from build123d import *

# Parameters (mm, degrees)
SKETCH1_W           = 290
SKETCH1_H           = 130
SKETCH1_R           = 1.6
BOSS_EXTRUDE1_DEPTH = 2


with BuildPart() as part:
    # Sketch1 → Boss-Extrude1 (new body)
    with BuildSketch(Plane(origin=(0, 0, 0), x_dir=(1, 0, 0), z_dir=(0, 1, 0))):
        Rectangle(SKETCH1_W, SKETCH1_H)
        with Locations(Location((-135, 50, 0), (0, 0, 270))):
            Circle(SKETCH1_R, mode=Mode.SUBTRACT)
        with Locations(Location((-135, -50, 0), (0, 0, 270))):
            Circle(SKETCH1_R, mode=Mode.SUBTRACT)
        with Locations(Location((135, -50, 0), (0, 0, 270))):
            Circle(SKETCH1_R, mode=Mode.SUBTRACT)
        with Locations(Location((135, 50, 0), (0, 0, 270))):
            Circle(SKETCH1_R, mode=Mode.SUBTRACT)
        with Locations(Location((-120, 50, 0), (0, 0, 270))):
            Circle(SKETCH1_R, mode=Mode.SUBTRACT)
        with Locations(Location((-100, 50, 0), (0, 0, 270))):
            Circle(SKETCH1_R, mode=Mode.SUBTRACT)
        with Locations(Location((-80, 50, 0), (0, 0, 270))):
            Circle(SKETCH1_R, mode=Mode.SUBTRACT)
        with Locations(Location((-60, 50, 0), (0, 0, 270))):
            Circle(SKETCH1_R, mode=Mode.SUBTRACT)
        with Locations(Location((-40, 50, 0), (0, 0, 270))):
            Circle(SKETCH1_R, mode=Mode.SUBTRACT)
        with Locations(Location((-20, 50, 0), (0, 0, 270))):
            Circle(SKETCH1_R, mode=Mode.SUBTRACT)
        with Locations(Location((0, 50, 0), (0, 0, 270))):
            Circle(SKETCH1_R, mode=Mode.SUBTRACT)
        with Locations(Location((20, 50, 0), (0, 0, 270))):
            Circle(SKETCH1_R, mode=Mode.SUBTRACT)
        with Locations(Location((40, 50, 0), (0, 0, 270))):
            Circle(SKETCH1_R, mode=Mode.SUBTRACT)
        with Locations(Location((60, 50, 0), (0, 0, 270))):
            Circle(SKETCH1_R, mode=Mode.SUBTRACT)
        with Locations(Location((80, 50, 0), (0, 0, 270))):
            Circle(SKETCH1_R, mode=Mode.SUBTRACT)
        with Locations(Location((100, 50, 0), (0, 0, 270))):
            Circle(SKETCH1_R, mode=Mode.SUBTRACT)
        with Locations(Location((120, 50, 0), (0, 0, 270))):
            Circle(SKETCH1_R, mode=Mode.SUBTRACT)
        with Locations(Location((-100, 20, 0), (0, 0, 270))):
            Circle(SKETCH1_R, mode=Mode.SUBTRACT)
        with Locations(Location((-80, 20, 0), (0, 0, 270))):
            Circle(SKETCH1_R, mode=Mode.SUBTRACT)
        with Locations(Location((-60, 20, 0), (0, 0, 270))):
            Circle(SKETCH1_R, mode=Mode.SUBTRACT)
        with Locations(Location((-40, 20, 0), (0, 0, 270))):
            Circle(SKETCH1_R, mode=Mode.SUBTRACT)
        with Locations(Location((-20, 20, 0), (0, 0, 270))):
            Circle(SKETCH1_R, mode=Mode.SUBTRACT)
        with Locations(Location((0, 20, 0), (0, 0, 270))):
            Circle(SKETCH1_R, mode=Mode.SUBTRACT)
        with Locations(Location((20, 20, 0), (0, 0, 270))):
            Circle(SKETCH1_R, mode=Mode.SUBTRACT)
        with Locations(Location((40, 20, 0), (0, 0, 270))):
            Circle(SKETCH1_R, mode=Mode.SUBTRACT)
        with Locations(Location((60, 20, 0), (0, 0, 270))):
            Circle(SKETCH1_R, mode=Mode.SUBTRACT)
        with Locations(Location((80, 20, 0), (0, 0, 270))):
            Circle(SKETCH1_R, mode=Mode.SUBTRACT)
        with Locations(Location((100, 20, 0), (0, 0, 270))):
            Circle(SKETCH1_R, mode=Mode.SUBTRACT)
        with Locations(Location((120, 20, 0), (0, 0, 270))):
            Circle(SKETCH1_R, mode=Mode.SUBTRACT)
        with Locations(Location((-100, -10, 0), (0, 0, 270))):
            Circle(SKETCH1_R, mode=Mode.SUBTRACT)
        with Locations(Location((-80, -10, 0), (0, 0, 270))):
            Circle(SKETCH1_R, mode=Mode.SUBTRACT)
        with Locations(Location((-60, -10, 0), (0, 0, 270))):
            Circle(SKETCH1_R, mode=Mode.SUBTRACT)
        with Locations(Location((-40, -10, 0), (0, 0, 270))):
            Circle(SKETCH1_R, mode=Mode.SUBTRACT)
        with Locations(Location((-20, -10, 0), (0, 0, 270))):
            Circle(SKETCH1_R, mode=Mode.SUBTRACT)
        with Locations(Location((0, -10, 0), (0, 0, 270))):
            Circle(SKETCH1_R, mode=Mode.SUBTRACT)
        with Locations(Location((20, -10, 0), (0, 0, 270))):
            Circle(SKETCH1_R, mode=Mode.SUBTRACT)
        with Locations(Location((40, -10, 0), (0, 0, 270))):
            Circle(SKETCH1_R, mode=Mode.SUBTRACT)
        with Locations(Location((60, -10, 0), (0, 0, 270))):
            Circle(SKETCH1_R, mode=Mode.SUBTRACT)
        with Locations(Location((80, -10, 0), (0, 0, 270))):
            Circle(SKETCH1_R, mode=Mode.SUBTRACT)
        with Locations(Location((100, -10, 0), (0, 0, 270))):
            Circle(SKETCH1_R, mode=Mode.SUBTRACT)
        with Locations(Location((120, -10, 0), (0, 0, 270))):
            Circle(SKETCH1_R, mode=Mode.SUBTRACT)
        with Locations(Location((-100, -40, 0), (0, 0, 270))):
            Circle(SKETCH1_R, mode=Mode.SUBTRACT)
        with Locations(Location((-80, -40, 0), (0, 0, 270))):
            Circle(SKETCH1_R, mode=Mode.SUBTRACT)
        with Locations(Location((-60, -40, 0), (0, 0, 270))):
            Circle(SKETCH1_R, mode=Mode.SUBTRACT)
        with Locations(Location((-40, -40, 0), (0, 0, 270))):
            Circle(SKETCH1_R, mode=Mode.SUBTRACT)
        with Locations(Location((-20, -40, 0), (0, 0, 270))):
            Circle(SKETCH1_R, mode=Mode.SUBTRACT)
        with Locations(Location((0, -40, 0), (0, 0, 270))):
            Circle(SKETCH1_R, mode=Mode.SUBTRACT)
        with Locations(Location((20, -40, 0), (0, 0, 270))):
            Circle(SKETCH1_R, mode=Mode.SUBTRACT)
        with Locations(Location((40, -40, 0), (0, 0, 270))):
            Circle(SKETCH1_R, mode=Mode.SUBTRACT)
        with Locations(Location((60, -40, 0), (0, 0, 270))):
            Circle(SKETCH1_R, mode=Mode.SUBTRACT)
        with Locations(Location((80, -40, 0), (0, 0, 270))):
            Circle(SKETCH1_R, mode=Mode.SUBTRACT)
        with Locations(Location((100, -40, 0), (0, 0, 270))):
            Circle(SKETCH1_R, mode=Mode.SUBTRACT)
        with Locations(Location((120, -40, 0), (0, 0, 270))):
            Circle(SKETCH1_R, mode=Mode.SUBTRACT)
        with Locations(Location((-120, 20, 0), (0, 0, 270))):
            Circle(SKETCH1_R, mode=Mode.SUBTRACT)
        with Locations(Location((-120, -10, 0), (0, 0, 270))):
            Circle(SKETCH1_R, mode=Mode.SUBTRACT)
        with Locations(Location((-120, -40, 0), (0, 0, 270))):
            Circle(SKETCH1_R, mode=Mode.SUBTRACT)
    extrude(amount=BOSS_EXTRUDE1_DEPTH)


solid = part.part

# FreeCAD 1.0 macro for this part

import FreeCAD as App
import Part
import Sketcher
from FreeCAD import Vector


def add_polygon(sketch, points):
    """Adds a closed chain of lines whose ends are joined by coincident constraints."""
    first, n = sketch.GeometryCount, len(points)
    for a, b in zip(points, points[1:] + points[:1]):
        sketch.addGeometry(Part.LineSegment(App.Vector(*a, 0), App.Vector(*b, 0)), False)
    for i in range(n):
        sketch.addConstraint(Sketcher.Constraint("Coincident", first + i, 2, first + (i + 1) % n, 1))

doc = App.newDocument("Part")
body = doc.addObject("PartDesign::Body", "Body")

# Sketch on XZ plane
sketch1 = body.newObject("Sketcher::SketchObject", "Sketch")
sketch1.AttachmentSupport = (doc.getObject("XZ_Plane"), [""])
sketch1.MapMode = "FlatFace"
add_polygon(sketch1, [(-145, -65), (-145, 65), (145, 65), (145, -65)])  # lines 0-3
sketch1.addGeometry(Part.Circle(Vector(-135, 50, 0), Vector(0, 0, 1), 1.6), False)  # 4
sketch1.addGeometry(Part.Circle(Vector(-120, 40, 0), Vector(0, 0, 1), 1.6), False)  # 5
sketch1.addGeometry(Part.Circle(Vector(-100, 40, 0), Vector(0, 0, 1), 1.6), False)  # 6
sketch1.addGeometry(Part.Circle(Vector(-80, 40, 0), Vector(0, 0, 1), 1.6), False)  # 7
sketch1.addGeometry(Part.Circle(Vector(-60, 40, 0), Vector(0, 0, 1), 1.6), False)  # 8
sketch1.addGeometry(Part.Circle(Vector(-40, 40, 0), Vector(0, 0, 1), 1.6), False)  # 9
sketch1.addGeometry(Part.Circle(Vector(-20, 40, 0), Vector(0, 0, 1), 1.6), False)  # 10
sketch1.addGeometry(Part.Circle(Vector(-120, 10, 0), Vector(0, 0, 1), 1.6), False)  # 11
sketch1.addGeometry(Part.Circle(Vector(-100, 10, 0), Vector(0, 0, 1), 1.6), False)  # 12
sketch1.addGeometry(Part.Circle(Vector(-80, 10, 0), Vector(0, 0, 1), 1.6), False)  # 13
sketch1.addGeometry(Part.Circle(Vector(-60, 10, 0), Vector(0, 0, 1), 1.6), False)  # 14
sketch1.addGeometry(Part.Circle(Vector(-40, 10, 0), Vector(0, 0, 1), 1.6), False)  # 15
sketch1.addGeometry(Part.Circle(Vector(-20, 10, 0), Vector(0, 0, 1), 1.6), False)  # 16
sketch1.addGeometry(Part.Circle(Vector(0, 40, 0), Vector(0, 0, 1), 1.6), False)  # 17
sketch1.addGeometry(Part.Circle(Vector(20, 40, 0), Vector(0, 0, 1), 1.6), False)  # 18
sketch1.addGeometry(Part.Circle(Vector(40, 40, 0), Vector(0, 0, 1), 1.6), False)  # 19
sketch1.addGeometry(Part.Circle(Vector(60, 40, 0), Vector(0, 0, 1), 1.6), False)  # 20
sketch1.addGeometry(Part.Circle(Vector(80, 40, 0), Vector(0, 0, 1), 1.6), False)  # 21
sketch1.addGeometry(Part.Circle(Vector(100, 40, 0), Vector(0, 0, 1), 1.6), False)  # 22
sketch1.addGeometry(Part.Circle(Vector(135, 50, 0), Vector(0, 0, 1), 1.6), False)  # 23
sketch1.addGeometry(Part.Circle(Vector(120, 40, 0), Vector(0, 0, 1), 1.6), False)  # 24
sketch1.addGeometry(Part.Circle(Vector(0, 10, 0), Vector(0, 0, 1), 1.6), False)  # 25
sketch1.addGeometry(Part.Circle(Vector(20, 10, 0), Vector(0, 0, 1), 1.6), False)  # 26
sketch1.addGeometry(Part.Circle(Vector(40, 10, 0), Vector(0, 0, 1), 1.6), False)  # 27
sketch1.addGeometry(Part.Circle(Vector(60, 10, 0), Vector(0, 0, 1), 1.6), False)  # 28
sketch1.addGeometry(Part.Circle(Vector(80, 10, 0), Vector(0, 0, 1), 1.6), False)  # 29
sketch1.addGeometry(Part.Circle(Vector(100, 10, 0), Vector(0, 0, 1), 1.6), False)  # 30
sketch1.addGeometry(Part.Circle(Vector(120, 10, 0), Vector(0, 0, 1), 1.6), False)  # 31
sketch1.addGeometry(Part.Circle(Vector(-120, -20, 0), Vector(0, 0, 1), 1.6), False)  # 32
sketch1.addGeometry(Part.Circle(Vector(-100, -20, 0), Vector(0, 0, 1), 1.6), False)  # 33
sketch1.addGeometry(Part.Circle(Vector(-80, -20, 0), Vector(0, 0, 1), 1.6), False)  # 34
sketch1.addGeometry(Part.Circle(Vector(-60, -20, 0), Vector(0, 0, 1), 1.6), False)  # 35
sketch1.addGeometry(Part.Circle(Vector(-40, -20, 0), Vector(0, 0, 1), 1.6), False)  # 36
sketch1.addGeometry(Part.Circle(Vector(-20, -20, 0), Vector(0, 0, 1), 1.6), False)  # 37
sketch1.addGeometry(Part.Circle(Vector(-135, -50, 0), Vector(0, 0, 1), 1.6), False)  # 38
sketch1.addGeometry(Part.Circle(Vector(-120, -50, 0), Vector(0, 0, 1), 1.6), False)  # 39
sketch1.addGeometry(Part.Circle(Vector(-100, -50, 0), Vector(0, 0, 1), 1.6), False)  # 40
sketch1.addGeometry(Part.Circle(Vector(-80, -50, 0), Vector(0, 0, 1), 1.6), False)  # 41
sketch1.addGeometry(Part.Circle(Vector(-60, -50, 0), Vector(0, 0, 1), 1.6), False)  # 42
sketch1.addGeometry(Part.Circle(Vector(-40, -50, 0), Vector(0, 0, 1), 1.6), False)  # 43
sketch1.addGeometry(Part.Circle(Vector(-20, -50, 0), Vector(0, 0, 1), 1.6), False)  # 44
sketch1.addGeometry(Part.Circle(Vector(0, -20, 0), Vector(0, 0, 1), 1.6), False)  # 45
sketch1.addGeometry(Part.Circle(Vector(20, -20, 0), Vector(0, 0, 1), 1.6), False)  # 46
sketch1.addGeometry(Part.Circle(Vector(40, -20, 0), Vector(0, 0, 1), 1.6), False)  # 47
sketch1.addGeometry(Part.Circle(Vector(60, -20, 0), Vector(0, 0, 1), 1.6), False)  # 48
sketch1.addGeometry(Part.Circle(Vector(80, -20, 0), Vector(0, 0, 1), 1.6), False)  # 49
sketch1.addGeometry(Part.Circle(Vector(100, -20, 0), Vector(0, 0, 1), 1.6), False)  # 50
sketch1.addGeometry(Part.Circle(Vector(120, -20, 0), Vector(0, 0, 1), 1.6), False)  # 51
sketch1.addGeometry(Part.Circle(Vector(0, -50, 0), Vector(0, 0, 1), 1.6), False)  # 52
sketch1.addGeometry(Part.Circle(Vector(20, -50, 0), Vector(0, 0, 1), 1.6), False)  # 53
sketch1.addGeometry(Part.Circle(Vector(40, -50, 0), Vector(0, 0, 1), 1.6), False)  # 54
sketch1.addGeometry(Part.Circle(Vector(60, -50, 0), Vector(0, 0, 1), 1.6), False)  # 55
sketch1.addGeometry(Part.Circle(Vector(80, -50, 0), Vector(0, 0, 1), 1.6), False)  # 56
sketch1.addGeometry(Part.Circle(Vector(100, -50, 0), Vector(0, 0, 1), 1.6), False)  # 57
sketch1.addGeometry(Part.Circle(Vector(120, -50, 0), Vector(0, 0, 1), 1.6), False)  # 58
sketch1.addGeometry(Part.Circle(Vector(135, -50, 0), Vector(0, 0, 1), 1.6), False)  # 59
sketch1.addConstraint(Sketcher.Constraint("Vertical", 0))
sketch1.addConstraint(Sketcher.Constraint("Horizontal", 1))
sketch1.addConstraint(Sketcher.Constraint("Vertical", 2))
sketch1.addConstraint(Sketcher.Constraint("Horizontal", 3))
sketch1.addConstraint(Sketcher.Constraint("Equal", 4, 5))
sketch1.addConstraint(Sketcher.Constraint("Equal", 5, 6))
sketch1.addConstraint(Sketcher.Constraint("Equal", 6, 7))
sketch1.addConstraint(Sketcher.Constraint("Equal", 7, 8))
sketch1.addConstraint(Sketcher.Constraint("Equal", 8, 9))
sketch1.addConstraint(Sketcher.Constraint("Equal", 9, 10))
sketch1.addConstraint(Sketcher.Constraint("Equal", 10, 11))
sketch1.addConstraint(Sketcher.Constraint("Equal", 11, 12))
sketch1.addConstraint(Sketcher.Constraint("Equal", 12, 13))
sketch1.addConstraint(Sketcher.Constraint("Equal", 13, 14))
sketch1.addConstraint(Sketcher.Constraint("Equal", 14, 15))
sketch1.addConstraint(Sketcher.Constraint("Equal", 15, 16))
sketch1.addConstraint(Sketcher.Constraint("Equal", 16, 17))
sketch1.addConstraint(Sketcher.Constraint("Equal", 17, 18))
sketch1.addConstraint(Sketcher.Constraint("Equal", 18, 19))
sketch1.addConstraint(Sketcher.Constraint("Equal", 19, 20))
sketch1.addConstraint(Sketcher.Constraint("Equal", 20, 21))
sketch1.addConstraint(Sketcher.Constraint("Equal", 21, 22))
sketch1.addConstraint(Sketcher.Constraint("Equal", 22, 23))
sketch1.addConstraint(Sketcher.Constraint("Equal", 23, 24))
sketch1.addConstraint(Sketcher.Constraint("Equal", 24, 25))
sketch1.addConstraint(Sketcher.Constraint("Equal", 25, 26))
sketch1.addConstraint(Sketcher.Constraint("Equal", 26, 27))
sketch1.addConstraint(Sketcher.Constraint("Equal", 27, 28))
sketch1.addConstraint(Sketcher.Constraint("Equal", 28, 29))
sketch1.addConstraint(Sketcher.Constraint("Equal", 29, 30))
sketch1.addConstraint(Sketcher.Constraint("Equal", 30, 31))
sketch1.addConstraint(Sketcher.Constraint("Equal", 31, 32))
sketch1.addConstraint(Sketcher.Constraint("Equal", 32, 33))
sketch1.addConstraint(Sketcher.Constraint("Equal", 33, 34))
sketch1.addConstraint(Sketcher.Constraint("Equal", 34, 35))
sketch1.addConstraint(Sketcher.Constraint("Equal", 35, 36))
sketch1.addConstraint(Sketcher.Constraint("Equal", 36, 37))
sketch1.addConstraint(Sketcher.Constraint("Equal", 37, 38))
sketch1.addConstraint(Sketcher.Constraint("Equal", 38, 39))
sketch1.addConstraint(Sketcher.Constraint("Equal", 39, 40))
sketch1.addConstraint(Sketcher.Constraint("Equal", 40, 41))
sketch1.addConstraint(Sketcher.Constraint("Equal", 41, 42))
sketch1.addConstraint(Sketcher.Constraint("Equal", 42, 43))
sketch1.addConstraint(Sketcher.Constraint("Equal", 43, 44))
sketch1.addConstraint(Sketcher.Constraint("Equal", 44, 45))
sketch1.addConstraint(Sketcher.Constraint("Equal", 45, 46))
sketch1.addConstraint(Sketcher.Constraint("Equal", 46, 47))
sketch1.addConstraint(Sketcher.Constraint("Equal", 47, 48))
sketch1.addConstraint(Sketcher.Constraint("Equal", 48, 49))
sketch1.addConstraint(Sketcher.Constraint("Equal", 49, 50))
sketch1.addConstraint(Sketcher.Constraint("Equal", 50, 51))
sketch1.addConstraint(Sketcher.Constraint("Equal", 51, 52))
sketch1.addConstraint(Sketcher.Constraint("Equal", 52, 53))
sketch1.addConstraint(Sketcher.Constraint("Equal", 53, 54))
sketch1.addConstraint(Sketcher.Constraint("Equal", 54, 55))
sketch1.addConstraint(Sketcher.Constraint("Equal", 55, 56))
sketch1.addConstraint(Sketcher.Constraint("Equal", 56, 57))
sketch1.addConstraint(Sketcher.Constraint("Equal", 57, 58))
sketch1.addConstraint(Sketcher.Constraint("Equal", 58, 59))
sketch1.addConstraint(Sketcher.Constraint("Symmetric", 23, 3, 38, 3, -1, 1))
sketch1.addConstraint(Sketcher.Constraint("Symmetric", 4, 3, 59, 3, -1, 1))
sketch1.addConstraint(Sketcher.Constraint("Symmetric", 0, 2, 2, 2, -1, 1))
sketch1.addConstraint(Sketcher.Constraint("Symmetric", 10, 3, 18, 3, -2))
sketch1.addConstraint(Sketcher.Constraint("Symmetric", 9, 3, 19, 3, -2))
sketch1.addConstraint(Sketcher.Constraint("Symmetric", 8, 3, 20, 3, -2))
sketch1.addConstraint(Sketcher.Constraint("Symmetric", 7, 3, 21, 3, -2))
sketch1.addConstraint(Sketcher.Constraint("Symmetric", 6, 3, 22, 3, -2))
sketch1.addConstraint(Sketcher.Constraint("Symmetric", 4, 3, 23, 3, -2))
sketch1.addConstraint(Sketcher.Constraint("Symmetric", 5, 3, 24, 3, -2))
sketch1.addConstraint(Sketcher.Constraint("Symmetric", 16, 3, 26, 3, -2))
sketch1.addConstraint(Sketcher.Constraint("Symmetric", 15, 3, 27, 3, -2))
sketch1.addConstraint(Sketcher.Constraint("Symmetric", 14, 3, 28, 3, -2))
sketch1.addConstraint(Sketcher.Constraint("Symmetric", 13, 3, 29, 3, -2))
sketch1.addConstraint(Sketcher.Constraint("Symmetric", 12, 3, 30, 3, -2))
sketch1.addConstraint(Sketcher.Constraint("Symmetric", 11, 3, 31, 3, -2))
sketch1.addConstraint(Sketcher.Constraint("Symmetric", 37, 3, 46, 3, -2))
sketch1.addConstraint(Sketcher.Constraint("Symmetric", 36, 3, 47, 3, -2))
sketch1.addConstraint(Sketcher.Constraint("Symmetric", 35, 3, 48, 3, -2))
sketch1.addConstraint(Sketcher.Constraint("Symmetric", 34, 3, 49, 3, -2))
sketch1.addConstraint(Sketcher.Constraint("Symmetric", 33, 3, 50, 3, -2))
sketch1.addConstraint(Sketcher.Constraint("Symmetric", 32, 3, 51, 3, -2))
sketch1.addConstraint(Sketcher.Constraint("Symmetric", 44, 3, 53, 3, -2))
sketch1.addConstraint(Sketcher.Constraint("Symmetric", 43, 3, 54, 3, -2))
sketch1.addConstraint(Sketcher.Constraint("Symmetric", 42, 3, 55, 3, -2))
sketch1.addConstraint(Sketcher.Constraint("Symmetric", 41, 3, 56, 3, -2))
sketch1.addConstraint(Sketcher.Constraint("Symmetric", 40, 3, 57, 3, -2))
sketch1.addConstraint(Sketcher.Constraint("Symmetric", 39, 3, 58, 3, -2))
sketch1.addConstraint(Sketcher.Constraint("PointOnObject", 17, 3, -2))
sketch1.addConstraint(Sketcher.Constraint("PointOnObject", 25, 3, -2))
sketch1.addConstraint(Sketcher.Constraint("PointOnObject", 45, 3, -2))
sketch1.addConstraint(Sketcher.Constraint("PointOnObject", 52, 3, -2))
sketch1.addConstraint(Sketcher.Constraint("Horizontal", 5, 3, 6, 3))
sketch1.addConstraint(Sketcher.Constraint("Horizontal", 6, 3, 7, 3))
sketch1.addConstraint(Sketcher.Constraint("Horizontal", 7, 3, 8, 3))
sketch1.addConstraint(Sketcher.Constraint("Horizontal", 8, 3, 9, 3))
sketch1.addConstraint(Sketcher.Constraint("Horizontal", 9, 3, 10, 3))
sketch1.addConstraint(Sketcher.Constraint("Horizontal", 11, 3, 12, 3))
sketch1.addConstraint(Sketcher.Constraint("Horizontal", 12, 3, 13, 3))
sketch1.addConstraint(Sketcher.Constraint("Horizontal", 13, 3, 14, 3))
sketch1.addConstraint(Sketcher.Constraint("Horizontal", 14, 3, 15, 3))
sketch1.addConstraint(Sketcher.Constraint("Horizontal", 15, 3, 16, 3))
sketch1.addConstraint(Sketcher.Constraint("Horizontal", 10, 3, 17, 3))
sketch1.addConstraint(Sketcher.Constraint("Horizontal", 16, 3, 25, 3))
sketch1.addConstraint(Sketcher.Constraint("Horizontal", 32, 3, 33, 3))
sketch1.addConstraint(Sketcher.Constraint("Horizontal", 33, 3, 34, 3))
sketch1.addConstraint(Sketcher.Constraint("Horizontal", 34, 3, 35, 3))
sketch1.addConstraint(Sketcher.Constraint("Horizontal", 35, 3, 36, 3))
sketch1.addConstraint(Sketcher.Constraint("Horizontal", 36, 3, 37, 3))
sketch1.addConstraint(Sketcher.Constraint("Horizontal", 38, 3, 39, 3))
sketch1.addConstraint(Sketcher.Constraint("Horizontal", 39, 3, 40, 3))
sketch1.addConstraint(Sketcher.Constraint("Horizontal", 40, 3, 41, 3))
sketch1.addConstraint(Sketcher.Constraint("Horizontal", 41, 3, 42, 3))
sketch1.addConstraint(Sketcher.Constraint("Horizontal", 42, 3, 43, 3))
sketch1.addConstraint(Sketcher.Constraint("Horizontal", 43, 3, 44, 3))
sketch1.addConstraint(Sketcher.Constraint("Horizontal", 37, 3, 45, 3))
sketch1.addConstraint(Sketcher.Constraint("Horizontal", 44, 3, 52, 3))
sketch1.addConstraint(Sketcher.Constraint("Vertical", 5, 3, 11, 3))
sketch1.addConstraint(Sketcher.Constraint("Vertical", 6, 3, 12, 3))
sketch1.addConstraint(Sketcher.Constraint("Vertical", 7, 3, 13, 3))
sketch1.addConstraint(Sketcher.Constraint("Vertical", 8, 3, 14, 3))
sketch1.addConstraint(Sketcher.Constraint("Vertical", 9, 3, 15, 3))
sketch1.addConstraint(Sketcher.Constraint("Vertical", 10, 3, 16, 3))
sketch1.addConstraint(Sketcher.Constraint("Vertical", 11, 3, 32, 3))
sketch1.addConstraint(Sketcher.Constraint("Vertical", 12, 3, 33, 3))
sketch1.addConstraint(Sketcher.Constraint("Vertical", 13, 3, 34, 3))
sketch1.addConstraint(Sketcher.Constraint("Vertical", 14, 3, 35, 3))
sketch1.addConstraint(Sketcher.Constraint("Vertical", 15, 3, 36, 3))
sketch1.addConstraint(Sketcher.Constraint("Vertical", 16, 3, 37, 3))
sketch1.addConstraint(Sketcher.Constraint("Vertical", 32, 3, 39, 3))
sketch1.addConstraint(Sketcher.Constraint("Vertical", 33, 3, 40, 3))
sketch1.addConstraint(Sketcher.Constraint("Vertical", 34, 3, 41, 3))
sketch1.addConstraint(Sketcher.Constraint("Vertical", 35, 3, 42, 3))
sketch1.addConstraint(Sketcher.Constraint("Vertical", 36, 3, 43, 3))
sketch1.addConstraint(Sketcher.Constraint("Vertical", 37, 3, 44, 3))
sketch1.addConstraint(Sketcher.Constraint("Diameter", 4, 3.2))
sketch1.addConstraint(Sketcher.Constraint("DistanceX", 1, 1, 1, 2, 290.0))
sketch1.addConstraint(Sketcher.Constraint("DistanceY", 0, 1, 0, 2, 130.0))
sketch1.addConstraint(Sketcher.Constraint("DistanceX", 4, 3, -1, 1, 135.0))
sketch1.addConstraint(Sketcher.Constraint("DistanceY", -1, 1, 4, 3, 50.0))
sketch1.addConstraint(Sketcher.Constraint("DistanceX", 5, 3, -1, 1, 120.0))
sketch1.addConstraint(Sketcher.Constraint("DistanceY", -1, 1, 5, 3, 40.0))
sketch1.addConstraint(Sketcher.Constraint("DistanceX", 6, 3, -1, 1, 100.0))
sketch1.addConstraint(Sketcher.Constraint("DistanceX", 7, 3, -1, 1, 80.0))
sketch1.addConstraint(Sketcher.Constraint("DistanceX", 8, 3, -1, 1, 60.0))
sketch1.addConstraint(Sketcher.Constraint("DistanceX", 9, 3, -1, 1, 40.0))
sketch1.addConstraint(Sketcher.Constraint("DistanceX", 10, 3, -1, 1, 20.0))
sketch1.addConstraint(Sketcher.Constraint("DistanceY", -1, 1, 11, 3, 10.0))
sketch1.addConstraint(Sketcher.Constraint("DistanceY", 32, 3, -1, 1, 20.0))
pad1 = body.newObject("PartDesign::Pad", "Pad")
pad1.Profile = sketch1
pad1.Length = 2
pad1.Reversed = True

doc.recompute()
